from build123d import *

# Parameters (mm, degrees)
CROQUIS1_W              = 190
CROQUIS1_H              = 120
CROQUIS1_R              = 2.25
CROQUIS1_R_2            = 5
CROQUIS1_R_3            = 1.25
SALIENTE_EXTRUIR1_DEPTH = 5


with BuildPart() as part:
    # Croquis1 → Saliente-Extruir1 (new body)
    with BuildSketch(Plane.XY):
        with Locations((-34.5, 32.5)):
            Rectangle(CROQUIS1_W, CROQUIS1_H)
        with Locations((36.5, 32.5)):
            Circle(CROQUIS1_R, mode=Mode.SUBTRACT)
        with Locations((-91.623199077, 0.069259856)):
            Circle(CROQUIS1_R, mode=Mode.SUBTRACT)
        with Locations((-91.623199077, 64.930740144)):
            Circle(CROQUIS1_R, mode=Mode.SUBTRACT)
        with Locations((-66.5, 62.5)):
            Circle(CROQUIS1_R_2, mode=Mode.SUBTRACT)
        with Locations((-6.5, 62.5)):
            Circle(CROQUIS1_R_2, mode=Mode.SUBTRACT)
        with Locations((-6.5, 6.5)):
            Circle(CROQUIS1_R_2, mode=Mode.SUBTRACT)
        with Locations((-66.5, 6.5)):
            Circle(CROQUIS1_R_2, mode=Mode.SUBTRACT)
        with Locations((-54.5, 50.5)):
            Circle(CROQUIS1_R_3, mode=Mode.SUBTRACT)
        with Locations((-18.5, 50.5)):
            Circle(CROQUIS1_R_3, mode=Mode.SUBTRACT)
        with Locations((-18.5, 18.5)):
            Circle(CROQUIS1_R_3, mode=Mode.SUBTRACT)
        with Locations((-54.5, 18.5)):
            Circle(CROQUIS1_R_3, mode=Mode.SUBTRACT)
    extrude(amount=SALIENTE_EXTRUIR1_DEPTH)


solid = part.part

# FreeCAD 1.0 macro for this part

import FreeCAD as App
import Part
import Sketcher

V = App.Vector


def add_polygon(sketch, points):
    """Adds a closed chain of lines whose ends are joined by coincident constraints."""
    first, n = sketch.GeometryCount, len(points)
    for a, b in zip(points, points[1:] + points[:1]):
        sketch.addGeometry(Part.LineSegment(App.Vector(*a, 0), App.Vector(*b, 0)), False)
    for i in range(n):
        sketch.addConstraint(Sketcher.Constraint("Coincident", first + i, 2, first + (i + 1) % n, 1))

doc = App.newDocument("Part")
body = doc.addObject("PartDesign::Body", "Body")

# Sketch on XY plane
sketch1 = doc.addObject("Sketcher::SketchObject", "Sketch")
body.addObject(sketch1)
sketch1.AttachmentSupport = (doc.XY_Plane, [""])
sketch1.MapMode = "FlatFace"
add_polygon(sketch1, [(-129.5, 92.5), (-129.5, -27.5), (60.5, -27.5), (60.5, 92.5)])  # lines 0-3
sketch1.addGeometry(Part.Circle(V(-91.6, 0.1, 0), V(0, 0, 1), 2.2), False)  # 4
sketch1.addGeometry(Part.Circle(V(-66.5, 6.5, 0), V(0, 0, 1), 5), False)  # 5
sketch1.addGeometry(Part.Circle(V(-54.5, 18.5, 0), V(0, 0, 1), 1.2), False)  # 6
sketch1.addGeometry(Part.Circle(V(-6.5, 6.5, 0), V(0, 0, 1), 5), False)  # 7
sketch1.addGeometry(Part.Circle(V(-18.5, 18.5, 0), V(0, 0, 1), 1.2), False)  # 8
sketch1.addGeometry(Part.Circle(V(36.5, 32.5, 0), V(0, 0, 1), 2.2), False)  # 9
sketch1.addGeometry(Part.Circle(V(-91.6, 64.9, 0), V(0, 0, 1), 2.2), False)  # 10
sketch1.addGeometry(Part.Circle(V(-66.5, 62.5, 0), V(0, 0, 1), 5), False)  # 11
sketch1.addGeometry(Part.Circle(V(-54.5, 50.5, 0), V(0, 0, 1), 1.2), False)  # 12
sketch1.addGeometry(Part.Circle(V(-18.5, 50.5, 0), V(0, 0, 1), 1.2), False)  # 13
sketch1.addGeometry(Part.Circle(V(-6.5, 62.5, 0), V(0, 0, 1), 5), False)  # 14
sketch1.addConstraint([
    Sketcher.Constraint("Vertical", 0),
    Sketcher.Constraint("Horizontal", 1),
    Sketcher.Constraint("Vertical", 2),
    Sketcher.Constraint("Horizontal", 3),
    Sketcher.Constraint("Equal", 5, 7),
    Sketcher.Constraint("Equal", 6, 8),
    Sketcher.Constraint("Equal", 4, 9),
    Sketcher.Constraint("Equal", 9, 10),
    Sketcher.Constraint("Equal", 7, 11),
    Sketcher.Constraint("Equal", 8, 12),
    Sketcher.Constraint("Equal", 12, 13),
    Sketcher.Constraint("Equal", 11, 14),
    Sketcher.Constraint("Horizontal", 5, 3, 7, 3),
    Sketcher.Constraint("Horizontal", 6, 3, 8, 3),
    Sketcher.Constraint("Horizontal", 12, 3, 13, 3),
    Sketcher.Constraint("Horizontal", 11, 3, 14, 3),
    Sketcher.Constraint("Vertical", 4, 3, 10, 3),
    Sketcher.Constraint("Vertical", 5, 3, 11, 3),
    Sketcher.Constraint("Vertical", 6, 3, 12, 3),
    Sketcher.Constraint("Vertical", 8, 3, 13, 3),
    Sketcher.Constraint("Vertical", 7, 3, 14, 3),
    Sketcher.Constraint("Diameter", 5, 10.0),
    Sketcher.Constraint("Diameter", 4, 4.5),
    Sketcher.Constraint("Diameter", 6, 2.5),
    Sketcher.Constraint("DistanceX", 1, 1, 1, 2, 190.0),
    Sketcher.Constraint("DistanceY", 0, 2, 0, 1, 120.0),
    Sketcher.Constraint("DistanceX", 5, 3, 6, 3, 12.0),
    Sketcher.Constraint("DistanceY", 5, 3, 6, 3, 12.0),
    Sketcher.Constraint("DistanceX", 6, 3, 7, 3, 48.0),
    Sketcher.Constraint("DistanceX", 8, 3, 7, 3, 12.0),
    Sketcher.Constraint("DistanceX", 7, 3, 9, 3, 43.0),
    Sketcher.Constraint("DistanceY", 7, 3, 9, 3, 26.0),
    Sketcher.Constraint("DistanceY", 6, 3, 11, 3, 44.0),
    Sketcher.Constraint("DistanceY", 12, 3, 11, 3, 12.0),
    Sketcher.Constraint("DistanceX", 0, 2, 5, 3, 63.0),
    Sketcher.Constraint("DistanceY", 0, 2, 5, 3, 34.0),
    Sketcher.Constraint("DistanceX", 5, 3, -1, 1, 66.5),
    Sketcher.Constraint("DistanceY", -1, 1, 5, 3, 6.5),
    Sketcher.Constraint("DistanceX", 4, 3, -1, 1, 91.623199),
    Sketcher.Constraint("DistanceY", -1, 1, 4, 3, 0.06926),
    Sketcher.Constraint("DistanceY", -1, 1, 10, 3, 64.93074),
])
pad1 = doc.addObject("PartDesign::Pad", "Pad")
body.addObject(pad1)
pad1.Profile = sketch1
pad1.Length = 5

doc.recompute()
